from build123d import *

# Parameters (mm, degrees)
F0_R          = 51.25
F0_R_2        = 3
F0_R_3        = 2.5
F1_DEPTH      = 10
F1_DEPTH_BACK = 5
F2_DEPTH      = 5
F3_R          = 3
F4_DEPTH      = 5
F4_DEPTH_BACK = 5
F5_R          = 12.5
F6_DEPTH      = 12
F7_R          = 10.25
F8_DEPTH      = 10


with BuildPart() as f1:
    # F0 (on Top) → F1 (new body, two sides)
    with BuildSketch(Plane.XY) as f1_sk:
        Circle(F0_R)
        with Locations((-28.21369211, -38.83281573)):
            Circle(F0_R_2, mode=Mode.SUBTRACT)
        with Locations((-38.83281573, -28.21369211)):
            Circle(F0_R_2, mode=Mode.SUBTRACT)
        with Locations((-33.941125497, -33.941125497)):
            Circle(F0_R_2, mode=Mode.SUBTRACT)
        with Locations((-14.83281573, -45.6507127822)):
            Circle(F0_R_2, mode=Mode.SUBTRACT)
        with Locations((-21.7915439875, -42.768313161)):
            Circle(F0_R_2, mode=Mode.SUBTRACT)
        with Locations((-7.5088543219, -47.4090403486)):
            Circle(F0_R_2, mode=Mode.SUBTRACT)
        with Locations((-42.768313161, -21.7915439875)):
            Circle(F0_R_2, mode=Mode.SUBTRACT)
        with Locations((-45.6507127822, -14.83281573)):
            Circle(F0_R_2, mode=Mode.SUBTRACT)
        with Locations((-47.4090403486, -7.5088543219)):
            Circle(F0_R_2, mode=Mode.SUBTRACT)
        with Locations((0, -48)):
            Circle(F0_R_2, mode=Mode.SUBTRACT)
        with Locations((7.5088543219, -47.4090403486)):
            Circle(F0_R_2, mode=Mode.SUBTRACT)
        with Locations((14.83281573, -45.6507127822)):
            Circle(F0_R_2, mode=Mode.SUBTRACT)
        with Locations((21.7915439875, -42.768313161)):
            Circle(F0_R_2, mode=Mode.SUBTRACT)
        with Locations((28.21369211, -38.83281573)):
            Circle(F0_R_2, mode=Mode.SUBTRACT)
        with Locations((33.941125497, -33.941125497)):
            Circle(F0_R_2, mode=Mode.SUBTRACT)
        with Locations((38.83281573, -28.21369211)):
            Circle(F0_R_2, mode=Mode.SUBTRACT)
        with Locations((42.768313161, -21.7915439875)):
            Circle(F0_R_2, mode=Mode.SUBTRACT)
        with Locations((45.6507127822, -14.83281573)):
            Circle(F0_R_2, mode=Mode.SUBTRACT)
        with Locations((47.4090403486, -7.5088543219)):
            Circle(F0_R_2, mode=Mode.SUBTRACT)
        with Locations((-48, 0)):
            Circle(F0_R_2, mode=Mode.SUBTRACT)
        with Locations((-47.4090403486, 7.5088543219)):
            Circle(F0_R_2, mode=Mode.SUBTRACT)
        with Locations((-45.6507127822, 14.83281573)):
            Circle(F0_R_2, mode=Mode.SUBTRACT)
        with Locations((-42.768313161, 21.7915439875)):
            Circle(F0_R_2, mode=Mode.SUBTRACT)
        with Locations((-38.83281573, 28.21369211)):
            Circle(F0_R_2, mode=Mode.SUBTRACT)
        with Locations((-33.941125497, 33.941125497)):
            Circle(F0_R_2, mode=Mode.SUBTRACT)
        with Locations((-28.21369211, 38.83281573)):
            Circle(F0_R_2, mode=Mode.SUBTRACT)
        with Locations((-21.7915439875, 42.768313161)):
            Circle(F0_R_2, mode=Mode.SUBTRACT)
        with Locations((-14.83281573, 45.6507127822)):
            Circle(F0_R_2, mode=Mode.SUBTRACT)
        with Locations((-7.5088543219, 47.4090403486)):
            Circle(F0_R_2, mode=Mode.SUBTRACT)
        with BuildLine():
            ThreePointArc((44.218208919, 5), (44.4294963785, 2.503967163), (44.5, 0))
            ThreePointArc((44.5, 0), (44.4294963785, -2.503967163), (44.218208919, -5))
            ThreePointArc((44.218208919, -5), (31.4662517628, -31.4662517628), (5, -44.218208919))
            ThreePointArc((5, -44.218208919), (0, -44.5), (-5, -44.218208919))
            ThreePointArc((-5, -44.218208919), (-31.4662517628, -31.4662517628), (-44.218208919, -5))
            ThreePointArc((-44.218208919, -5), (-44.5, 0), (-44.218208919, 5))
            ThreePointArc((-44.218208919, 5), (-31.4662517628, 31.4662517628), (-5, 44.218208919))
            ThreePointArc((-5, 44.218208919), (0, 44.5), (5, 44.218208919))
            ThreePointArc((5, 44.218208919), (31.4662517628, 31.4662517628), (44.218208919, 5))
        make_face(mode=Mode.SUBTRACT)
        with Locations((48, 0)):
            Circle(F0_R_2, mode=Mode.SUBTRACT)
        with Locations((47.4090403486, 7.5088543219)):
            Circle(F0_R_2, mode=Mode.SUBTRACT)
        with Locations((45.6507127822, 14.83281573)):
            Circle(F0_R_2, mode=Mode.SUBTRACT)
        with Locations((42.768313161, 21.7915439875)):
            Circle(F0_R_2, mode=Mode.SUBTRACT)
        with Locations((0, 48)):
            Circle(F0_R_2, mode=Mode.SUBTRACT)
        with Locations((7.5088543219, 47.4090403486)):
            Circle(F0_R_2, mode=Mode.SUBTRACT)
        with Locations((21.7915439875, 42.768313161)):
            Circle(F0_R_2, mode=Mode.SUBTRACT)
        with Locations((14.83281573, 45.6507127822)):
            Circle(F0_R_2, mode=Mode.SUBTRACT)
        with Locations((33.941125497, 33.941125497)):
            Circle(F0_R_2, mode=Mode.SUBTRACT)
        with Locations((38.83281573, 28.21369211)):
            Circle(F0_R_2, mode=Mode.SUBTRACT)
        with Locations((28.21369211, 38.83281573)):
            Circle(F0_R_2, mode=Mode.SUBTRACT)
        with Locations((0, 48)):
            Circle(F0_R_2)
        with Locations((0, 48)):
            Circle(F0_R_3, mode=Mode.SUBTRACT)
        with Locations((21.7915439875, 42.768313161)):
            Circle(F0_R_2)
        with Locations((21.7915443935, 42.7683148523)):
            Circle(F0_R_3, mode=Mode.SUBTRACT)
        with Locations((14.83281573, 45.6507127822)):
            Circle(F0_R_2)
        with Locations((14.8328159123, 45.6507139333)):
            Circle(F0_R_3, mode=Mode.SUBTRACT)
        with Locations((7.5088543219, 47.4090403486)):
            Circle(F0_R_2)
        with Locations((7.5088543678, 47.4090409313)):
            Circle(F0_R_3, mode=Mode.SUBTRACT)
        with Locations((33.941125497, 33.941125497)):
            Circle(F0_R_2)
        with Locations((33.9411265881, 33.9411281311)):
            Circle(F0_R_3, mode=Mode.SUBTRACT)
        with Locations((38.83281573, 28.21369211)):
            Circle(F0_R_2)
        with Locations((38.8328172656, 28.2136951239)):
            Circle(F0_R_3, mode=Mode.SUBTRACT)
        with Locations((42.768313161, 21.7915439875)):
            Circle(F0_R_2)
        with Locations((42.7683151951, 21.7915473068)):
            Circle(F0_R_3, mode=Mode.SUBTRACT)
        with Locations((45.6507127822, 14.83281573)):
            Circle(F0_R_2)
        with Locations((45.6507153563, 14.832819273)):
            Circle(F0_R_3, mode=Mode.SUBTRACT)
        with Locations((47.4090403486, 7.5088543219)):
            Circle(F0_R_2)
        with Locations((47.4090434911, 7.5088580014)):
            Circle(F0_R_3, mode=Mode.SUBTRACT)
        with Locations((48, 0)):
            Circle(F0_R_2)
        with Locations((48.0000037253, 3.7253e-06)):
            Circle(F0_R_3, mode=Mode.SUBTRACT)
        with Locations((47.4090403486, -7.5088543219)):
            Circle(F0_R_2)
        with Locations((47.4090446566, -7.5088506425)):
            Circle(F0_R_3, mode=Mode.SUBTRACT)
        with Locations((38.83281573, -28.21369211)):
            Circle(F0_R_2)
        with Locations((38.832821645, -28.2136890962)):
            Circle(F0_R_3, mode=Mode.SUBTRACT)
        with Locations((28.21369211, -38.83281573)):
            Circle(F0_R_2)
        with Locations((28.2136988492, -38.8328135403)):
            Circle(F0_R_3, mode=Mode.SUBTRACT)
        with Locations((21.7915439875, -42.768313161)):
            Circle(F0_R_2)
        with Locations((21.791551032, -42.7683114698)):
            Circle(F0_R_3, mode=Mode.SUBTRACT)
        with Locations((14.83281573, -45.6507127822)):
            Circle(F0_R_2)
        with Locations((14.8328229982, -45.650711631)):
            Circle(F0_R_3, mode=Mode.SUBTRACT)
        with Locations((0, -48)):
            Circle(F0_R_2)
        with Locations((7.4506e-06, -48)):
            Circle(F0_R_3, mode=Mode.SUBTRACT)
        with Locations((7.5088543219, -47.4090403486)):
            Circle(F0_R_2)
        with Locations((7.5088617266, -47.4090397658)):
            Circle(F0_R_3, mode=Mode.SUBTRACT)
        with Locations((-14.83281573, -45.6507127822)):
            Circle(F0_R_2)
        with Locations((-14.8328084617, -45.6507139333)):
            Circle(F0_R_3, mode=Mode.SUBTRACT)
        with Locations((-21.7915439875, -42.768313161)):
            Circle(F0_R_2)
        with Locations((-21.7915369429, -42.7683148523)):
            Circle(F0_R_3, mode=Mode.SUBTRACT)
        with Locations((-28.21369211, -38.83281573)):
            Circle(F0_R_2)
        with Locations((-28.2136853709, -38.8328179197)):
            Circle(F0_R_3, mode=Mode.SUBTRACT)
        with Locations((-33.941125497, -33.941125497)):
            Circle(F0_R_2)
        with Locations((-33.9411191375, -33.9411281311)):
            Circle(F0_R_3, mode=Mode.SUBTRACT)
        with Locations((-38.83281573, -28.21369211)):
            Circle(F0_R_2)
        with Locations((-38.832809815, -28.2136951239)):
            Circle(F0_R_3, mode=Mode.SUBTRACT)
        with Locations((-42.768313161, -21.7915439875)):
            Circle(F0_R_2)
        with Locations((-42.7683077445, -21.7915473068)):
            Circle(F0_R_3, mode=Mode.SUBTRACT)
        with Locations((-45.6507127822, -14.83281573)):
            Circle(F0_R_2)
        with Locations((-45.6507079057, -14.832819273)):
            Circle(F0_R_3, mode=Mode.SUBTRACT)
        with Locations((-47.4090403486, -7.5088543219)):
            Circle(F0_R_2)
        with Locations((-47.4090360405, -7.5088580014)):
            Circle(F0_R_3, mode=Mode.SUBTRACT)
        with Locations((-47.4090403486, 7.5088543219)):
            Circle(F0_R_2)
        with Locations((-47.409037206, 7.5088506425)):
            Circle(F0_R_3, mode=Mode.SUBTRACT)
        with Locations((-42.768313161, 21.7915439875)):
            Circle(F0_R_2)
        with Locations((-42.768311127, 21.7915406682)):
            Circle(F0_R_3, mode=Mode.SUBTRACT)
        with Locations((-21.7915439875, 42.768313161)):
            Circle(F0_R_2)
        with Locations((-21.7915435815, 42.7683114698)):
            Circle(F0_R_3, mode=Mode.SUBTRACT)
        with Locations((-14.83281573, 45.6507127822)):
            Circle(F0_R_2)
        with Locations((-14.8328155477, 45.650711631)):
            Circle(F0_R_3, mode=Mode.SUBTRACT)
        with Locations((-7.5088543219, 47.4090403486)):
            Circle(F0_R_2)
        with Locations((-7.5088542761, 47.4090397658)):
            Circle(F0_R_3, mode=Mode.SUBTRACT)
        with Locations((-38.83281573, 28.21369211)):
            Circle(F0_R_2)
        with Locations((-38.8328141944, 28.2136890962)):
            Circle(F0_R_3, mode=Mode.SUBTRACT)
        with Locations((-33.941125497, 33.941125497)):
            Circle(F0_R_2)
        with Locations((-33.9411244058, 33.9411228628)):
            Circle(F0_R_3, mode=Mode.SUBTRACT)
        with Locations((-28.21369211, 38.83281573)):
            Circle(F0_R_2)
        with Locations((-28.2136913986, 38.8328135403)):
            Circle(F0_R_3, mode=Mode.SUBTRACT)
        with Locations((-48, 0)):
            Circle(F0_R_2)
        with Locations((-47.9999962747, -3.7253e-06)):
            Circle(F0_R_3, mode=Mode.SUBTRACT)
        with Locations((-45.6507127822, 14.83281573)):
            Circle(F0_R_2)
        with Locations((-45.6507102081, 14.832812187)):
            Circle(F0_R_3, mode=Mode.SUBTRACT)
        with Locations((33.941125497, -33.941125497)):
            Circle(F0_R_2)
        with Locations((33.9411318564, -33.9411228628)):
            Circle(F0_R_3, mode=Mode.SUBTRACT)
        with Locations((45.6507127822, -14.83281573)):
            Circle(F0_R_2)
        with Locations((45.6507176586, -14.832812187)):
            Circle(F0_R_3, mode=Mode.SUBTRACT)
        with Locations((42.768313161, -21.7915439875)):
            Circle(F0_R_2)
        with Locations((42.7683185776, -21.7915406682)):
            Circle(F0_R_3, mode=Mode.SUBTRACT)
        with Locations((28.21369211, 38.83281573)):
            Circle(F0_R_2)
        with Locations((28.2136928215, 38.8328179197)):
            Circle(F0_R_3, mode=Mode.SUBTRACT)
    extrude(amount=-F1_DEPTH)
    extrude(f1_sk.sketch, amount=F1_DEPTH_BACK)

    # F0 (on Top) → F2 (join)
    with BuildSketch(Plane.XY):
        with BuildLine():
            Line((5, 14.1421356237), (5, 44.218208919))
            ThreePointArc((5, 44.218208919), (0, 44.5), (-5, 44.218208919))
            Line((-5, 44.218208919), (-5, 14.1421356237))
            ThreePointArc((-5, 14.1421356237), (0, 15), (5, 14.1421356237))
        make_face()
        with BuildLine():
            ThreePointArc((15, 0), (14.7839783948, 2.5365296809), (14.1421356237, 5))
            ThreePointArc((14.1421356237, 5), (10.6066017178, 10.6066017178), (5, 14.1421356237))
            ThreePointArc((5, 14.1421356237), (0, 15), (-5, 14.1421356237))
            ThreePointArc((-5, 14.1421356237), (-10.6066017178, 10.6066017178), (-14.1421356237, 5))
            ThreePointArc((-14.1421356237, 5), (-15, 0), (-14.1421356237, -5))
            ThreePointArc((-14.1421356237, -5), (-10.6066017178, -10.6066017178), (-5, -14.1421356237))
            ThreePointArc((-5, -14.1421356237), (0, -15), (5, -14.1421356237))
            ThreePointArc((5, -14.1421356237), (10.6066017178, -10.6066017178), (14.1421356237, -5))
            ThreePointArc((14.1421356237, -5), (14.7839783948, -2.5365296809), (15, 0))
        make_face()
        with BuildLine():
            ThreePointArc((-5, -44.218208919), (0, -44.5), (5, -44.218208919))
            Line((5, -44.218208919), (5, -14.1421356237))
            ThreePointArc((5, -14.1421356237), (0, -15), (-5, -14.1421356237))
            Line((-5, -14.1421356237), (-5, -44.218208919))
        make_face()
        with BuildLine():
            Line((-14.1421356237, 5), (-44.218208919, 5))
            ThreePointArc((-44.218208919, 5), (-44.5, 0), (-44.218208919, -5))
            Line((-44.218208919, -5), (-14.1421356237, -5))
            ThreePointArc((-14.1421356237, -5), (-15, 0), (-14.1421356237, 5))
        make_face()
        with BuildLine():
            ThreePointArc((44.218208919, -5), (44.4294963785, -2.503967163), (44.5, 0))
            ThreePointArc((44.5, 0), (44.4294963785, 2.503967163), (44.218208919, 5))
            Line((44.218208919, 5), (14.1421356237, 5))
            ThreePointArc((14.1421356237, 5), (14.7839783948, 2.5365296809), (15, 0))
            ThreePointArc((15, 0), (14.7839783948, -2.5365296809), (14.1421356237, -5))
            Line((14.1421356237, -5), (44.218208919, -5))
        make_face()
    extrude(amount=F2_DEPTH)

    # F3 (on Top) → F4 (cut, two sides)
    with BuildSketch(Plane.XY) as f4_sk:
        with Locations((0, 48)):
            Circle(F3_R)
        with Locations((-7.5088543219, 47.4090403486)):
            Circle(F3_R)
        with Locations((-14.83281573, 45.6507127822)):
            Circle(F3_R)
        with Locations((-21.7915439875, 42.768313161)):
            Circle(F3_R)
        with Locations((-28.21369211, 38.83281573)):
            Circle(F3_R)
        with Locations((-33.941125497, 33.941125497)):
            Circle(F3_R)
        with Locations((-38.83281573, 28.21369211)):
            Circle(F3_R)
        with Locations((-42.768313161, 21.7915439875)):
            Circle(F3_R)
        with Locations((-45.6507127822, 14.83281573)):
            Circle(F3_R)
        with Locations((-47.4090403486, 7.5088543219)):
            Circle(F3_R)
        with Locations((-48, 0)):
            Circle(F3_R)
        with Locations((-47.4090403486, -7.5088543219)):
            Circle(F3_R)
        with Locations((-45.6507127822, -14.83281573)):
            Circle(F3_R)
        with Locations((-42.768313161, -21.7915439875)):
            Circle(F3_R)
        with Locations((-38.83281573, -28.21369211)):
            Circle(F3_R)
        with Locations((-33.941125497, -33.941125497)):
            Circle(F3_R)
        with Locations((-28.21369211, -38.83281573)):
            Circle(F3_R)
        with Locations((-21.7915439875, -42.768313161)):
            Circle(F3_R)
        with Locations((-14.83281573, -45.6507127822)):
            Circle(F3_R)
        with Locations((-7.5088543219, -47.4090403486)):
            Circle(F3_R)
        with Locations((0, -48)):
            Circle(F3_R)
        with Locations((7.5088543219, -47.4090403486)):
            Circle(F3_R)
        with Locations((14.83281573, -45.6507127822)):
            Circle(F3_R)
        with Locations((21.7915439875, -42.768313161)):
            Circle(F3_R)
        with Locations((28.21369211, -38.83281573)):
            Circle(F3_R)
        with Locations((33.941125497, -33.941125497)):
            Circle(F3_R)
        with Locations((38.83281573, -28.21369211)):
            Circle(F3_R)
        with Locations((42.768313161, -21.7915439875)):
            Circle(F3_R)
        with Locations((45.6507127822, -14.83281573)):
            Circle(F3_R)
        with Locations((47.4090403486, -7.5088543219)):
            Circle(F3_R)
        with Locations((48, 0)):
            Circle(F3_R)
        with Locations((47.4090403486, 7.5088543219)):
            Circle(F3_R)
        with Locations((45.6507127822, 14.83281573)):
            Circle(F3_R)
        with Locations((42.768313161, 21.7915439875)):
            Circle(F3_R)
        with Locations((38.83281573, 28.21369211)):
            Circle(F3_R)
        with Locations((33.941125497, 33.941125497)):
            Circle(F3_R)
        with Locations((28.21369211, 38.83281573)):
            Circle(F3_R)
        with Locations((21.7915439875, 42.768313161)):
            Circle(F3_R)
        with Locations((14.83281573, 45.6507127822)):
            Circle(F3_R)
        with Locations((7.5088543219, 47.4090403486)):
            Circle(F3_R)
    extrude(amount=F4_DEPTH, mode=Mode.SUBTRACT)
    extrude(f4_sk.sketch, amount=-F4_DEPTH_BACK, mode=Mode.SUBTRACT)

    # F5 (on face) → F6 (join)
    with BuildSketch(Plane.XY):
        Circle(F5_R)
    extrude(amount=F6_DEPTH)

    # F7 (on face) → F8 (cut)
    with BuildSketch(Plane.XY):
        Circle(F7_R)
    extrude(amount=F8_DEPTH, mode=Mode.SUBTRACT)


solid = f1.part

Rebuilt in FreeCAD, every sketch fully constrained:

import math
import FreeCAD as App
import Part
import Sketcher

V = App.Vector
Q = App.Units.Quantity

doc = App.newDocument("Part")
body = doc.addObject("PartDesign::Body", "Body")

sketch1 = body.newObject("Sketcher::SketchObject", "Sketch")
sketch1.AttachmentSupport = (doc.getObject("XY_Plane"), [""])
sketch1.MapMode = "FlatFace"
sketch1.addGeometry([
    Part.Circle(V(0, 0, 0), V(0, 0, 1), 51.2),
    Part.Circle(V(-28.2, -38.8, 0), V(0, 0, 1), 2.5),
    Part.Circle(V(-38.8, -28.2, 0), V(0, 0, 1), 2.5),
    Part.Circle(V(-33.9, -33.9, 0), V(0, 0, 1), 2.5),
    Part.Circle(V(-14.8, -45.7, 0), V(0, 0, 1), 2.5),
    Part.Circle(V(-21.8, -42.8, 0), V(0, 0, 1), 2.5),
    Part.Circle(V(-7.5, -47.4, 0), V(0, 0, 1), 3),
    Part.Circle(V(-42.8, -21.8, 0), V(0, 0, 1), 2.5),
    Part.Circle(V(-45.7, -14.8, 0), V(0, 0, 1), 2.5),
    Part.Circle(V(-47.4, -7.5, 0), V(0, 0, 1), 2.5),
    Part.Circle(V(-48, 0, 0), V(0, 0, 1), 2.5),
    Part.Circle(V(0, -48, 0), V(0, 0, 1), 2.5),
    Part.Circle(V(7.5, -47.4, 0), V(0, 0, 1), 2.5),
    Part.Circle(V(14.8, -45.7, 0), V(0, 0, 1), 2.5),
    Part.Circle(V(21.8, -42.8, 0), V(0, 0, 1), 2.5),
    Part.Circle(V(28.2, -38.8, 0), V(0, 0, 1), 2.5),
    Part.Circle(V(33.9, -33.9, 0), V(0, 0, 1), 2.5),
    Part.Circle(V(38.8, -28.2, 0), V(0, 0, 1), 2.5),
    Part.Circle(V(42.8, -21.8, 0), V(0, 0, 1), 2.5),
    Part.Circle(V(45.7, -14.8, 0), V(0, 0, 1), 2.5),
    Part.Circle(V(47.4, -7.5, 0), V(0, 0, 1), 2.5),
    Part.Circle(V(-47.4, 7.5, 0), V(0, 0, 1), 2.5),
    Part.Circle(V(-45.7, 14.8, 0), V(0, 0, 1), 2.5),
    Part.Circle(V(-42.8, 21.8, 0), V(0, 0, 1), 2.5),
    Part.ArcOfCircle(Part.Circle(V(0, 0, 0), V(0, 0, 1), 44.5), math.radians(6), math.radians(84)),
    Part.ArcOfCircle(Part.Circle(V(0, 0, 0), V(0, 0, 1), 44.5), math.radians(0), math.radians(6.45)),
    Part.ArcOfCircle(Part.Circle(V(0, 0, 0), V(0, 0, 1), 44.5), math.radians(-6.45), math.radians(0)),
    Part.ArcOfCircle(Part.Circle(V(0, 0, 0), V(0, 0, 1), 44.5), math.radians(-84), math.radians(-6)),
    Part.ArcOfCircle(Part.Circle(V(0, 0, 0), V(0, 0, 1), 44.5), math.radians(-96.45), math.radians(-83.55)),
    Part.ArcOfCircle(Part.Circle(V(0, 0, 0), V(0, 0, 1), 44.5), math.radians(-174), math.radians(-96)),
    Part.ArcOfCircle(Part.Circle(V(0, 0, 0), V(0, 0, 1), 44.5), math.radians(173.55), math.radians(186.45)),
    Part.ArcOfCircle(Part.Circle(V(0, 0, 0), V(0, 0, 1), 44.5), math.radians(96), math.radians(174)),
    Part.ArcOfCircle(Part.Circle(V(0, 0, 0), V(0, 0, 1), 44.5), math.radians(83.55), math.radians(96.45)),
    Part.Circle(V(-38.8, 28.2, 0), V(0, 0, 1), 2.5),
    Part.Circle(V(-33.9, 33.9, 0), V(0, 0, 1), 2.5),
    Part.Circle(V(-28.2, 38.8, 0), V(0, 0, 1), 2.5),
    Part.Circle(V(-21.8, 42.8, 0), V(0, 0, 1), 2.5),
    Part.Circle(V(-14.8, 45.7, 0), V(0, 0, 1), 2.5),
    Part.Circle(V(-7.5, 47.4, 0), V(0, 0, 1), 2.5),
    Part.Circle(V(0, 48, 0), V(0, 0, 1), 2.5),
    Part.Circle(V(48, 0, 0), V(0, 0, 1), 2.5),
    Part.Circle(V(47.4, 7.5, 0), V(0, 0, 1), 2.5),
    Part.Circle(V(45.7, 14.8, 0), V(0, 0, 1), 2.5),
    Part.Circle(V(42.8, 21.8, 0), V(0, 0, 1), 2.5),
    Part.Circle(V(7.5, 47.4, 0), V(0, 0, 1), 2.5),
    Part.Circle(V(21.8, 42.8, 0), V(0, 0, 1), 2.5),
    Part.Circle(V(14.8, 45.7, 0), V(0, 0, 1), 2.5),
    Part.Circle(V(33.9, 33.9, 0), V(0, 0, 1), 2.5),
    Part.Circle(V(38.8, 28.2, 0), V(0, 0, 1), 2.5),
    Part.Circle(V(28.2, 38.8, 0), V(0, 0, 1), 2.5),
], False)
sketch1.addConstraint([
    Sketcher.Constraint("Tangent", 24, 1, 25, 2),
    Sketcher.Constraint("Tangent", 25, 1, 26, 2),
    Sketcher.Constraint("Tangent", 26, 1, 27, 2),
    Sketcher.Constraint("Tangent", 27, 1, 28, 2),
    Sketcher.Constraint("Tangent", 28, 1, 29, 2),
    Sketcher.Constraint("Tangent", 29, 1, 30, 2),
    Sketcher.Constraint("Tangent", 30, 1, 31, 2),
    Sketcher.Constraint("Tangent", 31, 1, 32, 2),
    Sketcher.Constraint("Tangent", 32, 1, 24, 2),
    Sketcher.Constraint("Coincident", 0, 3, -1, 1),
    Sketcher.Constraint("Coincident", 24, 3, -1, 1),
    Sketcher.Constraint("Coincident", 26, 3, -1, 1),
    Sketcher.Constraint("Coincident", 28, 3, -1, 1),
    Sketcher.Constraint("Coincident", 30, 3, -1, 1),
    Sketcher.Constraint("Equal", 1, 2),
    Sketcher.Constraint("Equal", 2, 3),
    Sketcher.Constraint("Equal", 3, 4),
    Sketcher.Constraint("Equal", 4, 5),
    Sketcher.Constraint("Equal", 5, 7),
    Sketcher.Constraint("Equal", 7, 8),
    Sketcher.Constraint("Equal", 8, 9),
    Sketcher.Constraint("Equal", 9, 10),
    Sketcher.Constraint("Equal", 10, 11),
    Sketcher.Constraint("Equal", 11, 12),
    Sketcher.Constraint("Equal", 12, 13),
    Sketcher.Constraint("Equal", 13, 14),
    Sketcher.Constraint("Equal", 14, 15),
    Sketcher.Constraint("Equal", 15, 16),
    Sketcher.Constraint("Equal", 16, 17),
    Sketcher.Constraint("Equal", 17, 18),
    Sketcher.Constraint("Equal", 18, 19),
    Sketcher.Constraint("Equal", 19, 20),
    Sketcher.Constraint("Equal", 20, 21),
    Sketcher.Constraint("Equal", 21, 22),
    Sketcher.Constraint("Equal", 22, 23),
    Sketcher.Constraint("Equal", 23, 33),
    Sketcher.Constraint("Equal", 33, 34),
    Sketcher.Constraint("Equal", 34, 35),
    Sketcher.Constraint("Equal", 35, 36),
    Sketcher.Constraint("Equal", 36, 37),
    Sketcher.Constraint("Equal", 37, 38),
    Sketcher.Constraint("Equal", 38, 39),
    Sketcher.Constraint("Equal", 39, 40),
    Sketcher.Constraint("Equal", 40, 41),
    Sketcher.Constraint("Equal", 41, 42),
    Sketcher.Constraint("Equal", 42, 43),
    Sketcher.Constraint("Equal", 43, 44),
    Sketcher.Constraint("Equal", 44, 45),
    Sketcher.Constraint("Equal", 45, 46),
    Sketcher.Constraint("Equal", 46, 47),
    Sketcher.Constraint("Equal", 47, 48),
    Sketcher.Constraint("Equal", 48, 49),
    Sketcher.Constraint("Symmetric", 20, 3, 21, 3, -1, 1),
    Sketcher.Constraint("Symmetric", 19, 3, 22, 3, -1, 1),
    Sketcher.Constraint("Symmetric", 18, 3, 23, 3, -1, 1),
    Sketcher.Constraint("Symmetric", 17, 3, 33, 3, -1, 1),
    Sketcher.Constraint("Symmetric", 16, 3, 34, 3, -1, 1),
    Sketcher.Constraint("Symmetric", 15, 3, 35, 3, -1, 1),
    Sketcher.Constraint("Symmetric", 14, 3, 36, 3, -1, 1),
    Sketcher.Constraint("Symmetric", 13, 3, 37, 3, -1, 1),
    Sketcher.Constraint("Symmetric", 12, 3, 38, 3, -1, 1),
    Sketcher.Constraint("Symmetric", 11, 3, 39, 3, -1, 1),
    Sketcher.Constraint("Symmetric", 10, 3, 40, 3, -1, 1),
    Sketcher.Constraint("Symmetric", 9, 3, 41, 3, -1, 1),
    Sketcher.Constraint("Symmetric", 8, 3, 42, 3, -1, 1),
    Sketcher.Constraint("Symmetric", 7, 3, 43, 3, -1, 1),
    Sketcher.Constraint("Symmetric", 6, 3, 44, 3, -1, 1),
    Sketcher.Constraint("Symmetric", 5, 3, 45, 3, -1, 1),
    Sketcher.Constraint("Symmetric", 4, 3, 46, 3, -1, 1),
    Sketcher.Constraint("Symmetric", 3, 3, 47, 3, -1, 1),
    Sketcher.Constraint("Symmetric", 2, 3, 48, 3, -1, 1),
    Sketcher.Constraint("Symmetric", 1, 3, 49, 3, -1, 1),
    Sketcher.Constraint("Symmetric", 6, 3, 12, 3, -2),
    Sketcher.Constraint("Symmetric", 21, 3, 41, 3, -2),
    Sketcher.Constraint("Symmetric", 22, 3, 42, 3, -2),
    Sketcher.Constraint("Symmetric", 23, 3, 43, 3, -2),
    Sketcher.Constraint("Symmetric", 36, 3, 45, 3, -2),
    Sketcher.Constraint("Symmetric", 37, 3, 46, 3, -2),
    Sketcher.Constraint("Symmetric", 34, 3, 47, 3, -2),
    Sketcher.Constraint("Symmetric", 33, 3, 48, 3, -2),
    Sketcher.Constraint("Symmetric", 35, 3, 49, 3, -2),
    Sketcher.Constraint("PointOnObject", 39, 3, -2),
    Sketcher.Constraint("PointOnObject", 25, 1, -1),
    Sketcher.Constraint("Horizontal", 27, 1, 28, 1),
    Sketcher.Constraint("Horizontal", 26, 1, 29, 1),
    Sketcher.Constraint("Horizontal", 24, 1, 30, 1),
    Sketcher.Constraint("Horizontal", 31, 1, 32, 1),
    Sketcher.Constraint("Vertical", 24, 1, 26, 1),
    Sketcher.Constraint("Vertical", 28, 1, 31, 1),
    Sketcher.Constraint("Diameter", 1, Q("5 mm")),
    Sketcher.Constraint("Diameter", 6, Q("6 mm")),
    Sketcher.Constraint("Diameter", 0, Q("102.5 mm")),
    Sketcher.Constraint("Radius", 24, Q("44.5 mm")),
    Sketcher.Constraint("DistanceY", 11, 3, -1, 1, Q("48 mm")),
    Sketcher.Constraint("DistanceY", -1, 1, 24, 1, Q("5 mm")),
    Sketcher.Constraint("DistanceX", -1, 1, 27, 1, Q("5 mm")),
    Sketcher.Constraint("DistanceX", 2, 3, 4, 3, Q("24.000001 mm")),
    Sketcher.Constraint("DistanceY", 1, 3, 8, 3, Q("23.999999 mm")),
    Sketcher.Constraint("DistanceX", -1, 1, 15, 3, Q("28.213699 mm")),
    Sketcher.Constraint("DistanceY", 4, 3, 5, 3, Q("2.882399 mm")),
    Sketcher.Constraint("DistanceX", 7, 3, 4, 3, Q("27.935499 mm")),
    Sketcher.Constraint("DistanceX", 8, 3, 7, 3, Q("2.8824 mm")),
    Sketcher.Constraint("DistanceX", 5, 3, 12, 3, Q("29.300399 mm")),
    Sketcher.Constraint("DistanceY", 13, 3, 15, 3, Q("6.817898 mm")),
    Sketcher.Constraint("DistanceY", 9, 3, 23, 3, Q("29.300399 mm")),
    Sketcher.Constraint("DistanceX", 8, 3, 29, 1, Q("1.432499 mm")),
    Sketcher.Constraint("DistanceX", 3, 3, -1, 1, Q("33.941119 mm")),
    Sketcher.Constraint("DistanceY", 3, 3, -1, 1, Q("33.941128 mm")),
    Sketcher.Constraint("DistanceY", 6, 3, -1, 1, Q("47.40904 mm")),
    Sketcher.Constraint("DistanceY", 8, 3, -1, 1, Q("14.832819 mm")),
    Sketcher.Constraint("DistanceY", 9, 3, -1, 1, Q("7.508858 mm")),
    Sketcher.Constraint("DistanceX", -1, 1, 12, 3, Q("7.508862 mm")),
    Sketcher.Constraint("DistanceY", 17, 3, -1, 1, Q("28.213689 mm")),
    Sketcher.Constraint("DistanceX", 9, 3, 8, 3, Q("1.758328 mm")),
    Sketcher.Constraint("DistanceX", 10, 3, 9, 3, Q("0.59096 mm")),
    Sketcher.Constraint("DistanceY", 2, 3, 10, 3, Q("28.213691 mm")),
])
pad1 = body.newObject("PartDesign::Pad", "Pad")
pad1.Profile = sketch1
pad1.Type = "TwoLengths"
pad1.Length = 10
pad1.Length2 = 5
pad1.Reversed = True

sketch2 = body.newObject("Sketcher::SketchObject", "Sketch001")
sketch2.AttachmentSupport = (doc.getObject("XY_Plane"), [""])
sketch2.MapMode = "FlatFace"
sketch2.addGeometry([
    Part.LineSegment(V(5, 14, 0), V(5, 44, 0)),
    Part.ArcOfCircle(Part.Circle(V(0, 0, 0), V(0, 0, 1), 45), math.radians(83.55), math.radians(96.45)),
    Part.LineSegment(V(-5, 44, 0), V(-5, 14, 0)),
    Part.ArcOfCircle(Part.Circle(V(0, 0, 0), V(0, 0, 1), 15), math.radians(109), math.radians(161)),
    Part.LineSegment(V(-14, 5, 0), V(-44, 5, 0)),
    Part.ArcOfCircle(Part.Circle(V(0, 0, 0), V(0, 0, 1), 45), math.radians(173.55), math.radians(186.45)),
    Part.LineSegment(V(-44, -5, 0), V(-14, -5, 0)),
    Part.ArcOfCircle(Part.Circle(V(0, 0, 0), V(0, 0, 1), 15), math.radians(-161), math.radians(-109)),
    Part.LineSegment(V(-5, -14, 0), V(-5, -44, 0)),
    Part.ArcOfCircle(Part.Circle(V(0, 0, 0), V(0, 0, 1), 45), math.radians(-96.45), math.radians(-83.55)),
    Part.LineSegment(V(5, -44, 0), V(5, -14, 0)),
    Part.ArcOfCircle(Part.Circle(V(0, 0, 0), V(0, 0, 1), 15), math.radians(-71), math.radians(-19)),
    Part.LineSegment(V(14, -5, 0), V(44, -5, 0)),
    Part.ArcOfCircle(Part.Circle(V(0, 0, 0), V(0, 0, 1), 45), math.radians(-6.45), math.radians(0)),
    Part.ArcOfCircle(Part.Circle(V(0, 0, 0), V(0, 0, 1), 45), math.radians(0), math.radians(6.45)),
    Part.LineSegment(V(44, 5, 0), V(14, 5, 0)),
    Part.ArcOfCircle(Part.Circle(V(0, 0, 0), V(0, 0, 1), 15), math.radians(19), math.radians(71)),
], False)
sketch2.addConstraint([
    Sketcher.Constraint("Coincident", 0, 2, 1, 1),
    Sketcher.Constraint("Coincident", 1, 2, 2, 1),
    Sketcher.Constraint("Coincident", 2, 2, 3, 1),
    Sketcher.Constraint("Coincident", 3, 2, 4, 1),
    Sketcher.Constraint("Coincident", 4, 2, 5, 1),
    Sketcher.Constraint("Coincident", 5, 2, 6, 1),
    Sketcher.Constraint("Coincident", 6, 2, 7, 1),
    Sketcher.Constraint("Coincident", 7, 2, 8, 1),
    Sketcher.Constraint("Coincident", 8, 2, 9, 1),
    Sketcher.Constraint("Coincident", 9, 2, 10, 1),
    Sketcher.Constraint("Coincident", 10, 2, 11, 1),
    Sketcher.Constraint("Coincident", 11, 2, 12, 1),
    Sketcher.Constraint("Coincident", 12, 2, 13, 1),
    Sketcher.Constraint("Tangent", 13, 2, 14, 1),
    Sketcher.Constraint("Coincident", 14, 2, 15, 1),
    Sketcher.Constraint("Coincident", 15, 2, 16, 1),
    Sketcher.Constraint("Coincident", 16, 2, 0, 1),
    Sketcher.Constraint("Vertical", 0),
    Sketcher.Constraint("Vertical", 2),
    Sketcher.Constraint("Horizontal", 4),
    Sketcher.Constraint("Horizontal", 6),
    Sketcher.Constraint("Vertical", 8),
    Sketcher.Constraint("Vertical", 10),
    Sketcher.Constraint("Horizontal", 12),
    Sketcher.Constraint("Horizontal", 15),
    Sketcher.Constraint("Coincident", 1, 3, -1, 1),
    Sketcher.Constraint("Coincident", 3, 3, -1, 1),
    Sketcher.Constraint("Coincident", 5, 3, -1, 1),
    Sketcher.Constraint("Coincident", 7, 3, -1, 1),
    Sketcher.Constraint("Coincident", 9, 3, -1, 1),
    Sketcher.Constraint("Coincident", 11, 3, -1, 1),
    Sketcher.Constraint("Coincident", 13, 3, -1, 1),
    Sketcher.Constraint("Coincident", 16, 3, -1, 1),
    Sketcher.Constraint("Equal", 1, 5),
    Sketcher.Constraint("Equal", 3, 7),
    Sketcher.Constraint("Equal", 5, 9),
    Sketcher.Constraint("Equal", 7, 11),
    Sketcher.Constraint("Equal", 9, 13),
    Sketcher.Constraint("Equal", 13, 14),
    Sketcher.Constraint("Equal", 11, 16),
    Sketcher.Constraint("PointOnObject", 13, 2, -1),
    Sketcher.Constraint("Horizontal", 0, 2, 1, 2),
    Sketcher.Constraint("Horizontal", 8, 2, 9, 2),
    Sketcher.Constraint("Horizontal", 6, 2, 11, 2),
    Sketcher.Constraint("Horizontal", 4, 2, 14, 2),
    Sketcher.Constraint("Vertical", 4, 2, 5, 2),
    Sketcher.Constraint("Vertical", 2, 2, 7, 2),
    Sketcher.Constraint("Equal", 15, 0),
    Sketcher.Constraint("Radius", 3, Q("15 mm")),
    Sketcher.Constraint("Radius", 1, Q("44.5 mm")),
    Sketcher.Constraint("DistanceX", -1, 1, 0, 2, Q("5 mm")),
])
pad2 = body.newObject("PartDesign::Pad", "Pad001")
pad2.Profile = sketch2
pad2.Length = 5

sketch3 = body.newObject("Sketcher::SketchObject", "Sketch002")
sketch3.AttachmentSupport = (doc.getObject("XY_Plane"), [""])
sketch3.MapMode = "FlatFace"
sketch3.addGeometry([
    Part.Circle(V(0, 48, 0), V(0, 0, 1), 3),
    Part.Circle(V(-7.5, 47.4, 0), V(0, 0, 1), 3),
    Part.Circle(V(-14.8, 45.7, 0), V(0, 0, 1), 3),
    Part.Circle(V(-21.8, 42.8, 0), V(0, 0, 1), 3),
    Part.Circle(V(-28.2, 38.8, 0), V(0, 0, 1), 3),
    Part.Circle(V(-33.9, 33.9, 0), V(0, 0, 1), 3),
    Part.Circle(V(-38.8, 28.2, 0), V(0, 0, 1), 3),
    Part.Circle(V(-42.8, 21.8, 0), V(0, 0, 1), 3),
    Part.Circle(V(-45.7, 14.8, 0), V(0, 0, 1), 3),
    Part.Circle(V(-47.4, 7.5, 0), V(0, 0, 1), 3),
    Part.Circle(V(-48, 0, 0), V(0, 0, 1), 3),
    Part.Circle(V(-47.4, -7.5, 0), V(0, 0, 1), 3),
    Part.Circle(V(-45.7, -14.8, 0), V(0, 0, 1), 3),
    Part.Circle(V(-42.8, -21.8, 0), V(0, 0, 1), 3),
    Part.Circle(V(-38.8, -28.2, 0), V(0, 0, 1), 3),
    Part.Circle(V(-33.9, -33.9, 0), V(0, 0, 1), 3),
    Part.Circle(V(-28.2, -38.8, 0), V(0, 0, 1), 3),
    Part.Circle(V(-21.8, -42.8, 0), V(0, 0, 1), 3),
    Part.Circle(V(-14.8, -45.7, 0), V(0, 0, 1), 3),
    Part.Circle(V(-7.5, -47.4, 0), V(0, 0, 1), 3),
    Part.Circle(V(0, -48, 0), V(0, 0, 1), 3),
    Part.Circle(V(7.5, -47.4, 0), V(0, 0, 1), 3),
    Part.Circle(V(14.8, -45.7, 0), V(0, 0, 1), 3),
    Part.Circle(V(21.8, -42.8, 0), V(0, 0, 1), 3),
    Part.Circle(V(28.2, -38.8, 0), V(0, 0, 1), 3),
    Part.Circle(V(33.9, -33.9, 0), V(0, 0, 1), 3),
    Part.Circle(V(38.8, -28.2, 0), V(0, 0, 1), 3),
    Part.Circle(V(42.8, -21.8, 0), V(0, 0, 1), 3),
    Part.Circle(V(45.7, -14.8, 0), V(0, 0, 1), 3),
    Part.Circle(V(47.4, -7.5, 0), V(0, 0, 1), 3),
    Part.Circle(V(48, 0, 0), V(0, 0, 1), 3),
    Part.Circle(V(47.4, 7.5, 0), V(0, 0, 1), 3),
    Part.Circle(V(45.7, 14.8, 0), V(0, 0, 1), 3),
    Part.Circle(V(42.8, 21.8, 0), V(0, 0, 1), 3),
    Part.Circle(V(38.8, 28.2, 0), V(0, 0, 1), 3),
    Part.Circle(V(33.9, 33.9, 0), V(0, 0, 1), 3),
    Part.Circle(V(28.2, 38.8, 0), V(0, 0, 1), 3),
    Part.Circle(V(21.8, 42.8, 0), V(0, 0, 1), 3),
    Part.Circle(V(14.8, 45.7, 0), V(0, 0, 1), 3),
    Part.Circle(V(7.5, 47.4, 0), V(0, 0, 1), 3),
], False)
sketch3.addConstraint([
    Sketcher.Constraint("Equal", 0, 1),
    Sketcher.Constraint("Equal", 1, 2),
    Sketcher.Constraint("Equal", 2, 3),
    Sketcher.Constraint("Equal", 3, 4),
    Sketcher.Constraint("Equal", 4, 5),
    Sketcher.Constraint("Equal", 5, 6),
    Sketcher.Constraint("Equal", 6, 7),
    Sketcher.Constraint("Equal", 7, 8),
    Sketcher.Constraint("Equal", 8, 9),
    Sketcher.Constraint("Equal", 9, 10),
    Sketcher.Constraint("Equal", 10, 11),
    Sketcher.Constraint("Equal", 11, 12),
    Sketcher.Constraint("Equal", 12, 13),
    Sketcher.Constraint("Equal", 13, 14),
    Sketcher.Constraint("Equal", 14, 15),
    Sketcher.Constraint("Equal", 15, 16),
    Sketcher.Constraint("Equal", 16, 17),
    Sketcher.Constraint("Equal", 17, 18),
    Sketcher.Constraint("Equal", 18, 19),
    Sketcher.Constraint("Equal", 19, 20),
    Sketcher.Constraint("Equal", 20, 21),
    Sketcher.Constraint("Equal", 21, 22),
    Sketcher.Constraint("Equal", 22, 23),
    Sketcher.Constraint("Equal", 23, 24),
    Sketcher.Constraint("Equal", 24, 25),
    Sketcher.Constraint("Equal", 25, 26),
    Sketcher.Constraint("Equal", 26, 27),
    Sketcher.Constraint("Equal", 27, 28),
    Sketcher.Constraint("Equal", 28, 29),
    Sketcher.Constraint("Equal", 29, 30),
    Sketcher.Constraint("Equal", 30, 31),
    Sketcher.Constraint("Equal", 31, 32),
    Sketcher.Constraint("Equal", 32, 33),
    Sketcher.Constraint("Equal", 33, 34),
    Sketcher.Constraint("Equal", 34, 35),
    Sketcher.Constraint("Equal", 35, 36),
    Sketcher.Constraint("Equal", 36, 37),
    Sketcher.Constraint("Equal", 37, 38),
    Sketcher.Constraint("Equal", 38, 39),
    Sketcher.Constraint("Symmetric", 0, 3, 20, 3, -1, 1),
    Sketcher.Constraint("Symmetric", 1, 3, 21, 3, -1, 1),
    Sketcher.Constraint("Symmetric", 2, 3, 22, 3, -1, 1),
    Sketcher.Constraint("Symmetric", 3, 3, 23, 3, -1, 1),
    Sketcher.Constraint("Symmetric", 4, 3, 24, 3, -1, 1),
    Sketcher.Constraint("Symmetric", 5, 3, 25, 3, -1, 1),
    Sketcher.Constraint("Symmetric", 6, 3, 26, 3, -1, 1),
    Sketcher.Constraint("Symmetric", 7, 3, 27, 3, -1, 1),
    Sketcher.Constraint("Symmetric", 8, 3, 28, 3, -1, 1),
    Sketcher.Constraint("Symmetric", 9, 3, 29, 3, -1, 1),
    Sketcher.Constraint("Symmetric", 10, 3, 30, 3, -1, 1),
    Sketcher.Constraint("Symmetric", 11, 3, 31, 3, -1, 1),
    Sketcher.Constraint("Symmetric", 12, 3, 32, 3, -1, 1),
    Sketcher.Constraint("Symmetric", 13, 3, 33, 3, -1, 1),
    Sketcher.Constraint("Symmetric", 14, 3, 34, 3, -1, 1),
    Sketcher.Constraint("Symmetric", 15, 3, 35, 3, -1, 1),
    Sketcher.Constraint("Symmetric", 16, 3, 36, 3, -1, 1),
    Sketcher.Constraint("Symmetric", 17, 3, 37, 3, -1, 1),
    Sketcher.Constraint("Symmetric", 18, 3, 38, 3, -1, 1),
    Sketcher.Constraint("Symmetric", 19, 3, 39, 3, -1, 1),
    Sketcher.Constraint("Symmetric", 19, 3, 21, 3, -2),
    Sketcher.Constraint("Symmetric", 18, 3, 22, 3, -2),
    Sketcher.Constraint("Symmetric", 17, 3, 23, 3, -2),
    Sketcher.Constraint("Symmetric", 16, 3, 24, 3, -2),
    Sketcher.Constraint("Symmetric", 15, 3, 25, 3, -2),
    Sketcher.Constraint("Symmetric", 14, 3, 26, 3, -2),
    Sketcher.Constraint("Symmetric", 13, 3, 27, 3, -2),
    Sketcher.Constraint("Symmetric", 12, 3, 28, 3, -2),
    Sketcher.Constraint("Symmetric", 11, 3, 29, 3, -2),
    Sketcher.Constraint("PointOnObject", 0, 3, -2),
    Sketcher.Constraint("PointOnObject", 10, 3, -1),
    Sketcher.Constraint("Diameter", 0, Q("6 mm")),
    Sketcher.Constraint("DistanceY", -1, 1, 0, 3, Q("48 mm")),
    Sketcher.Constraint("DistanceX", 10, 3, -1, 1, Q("48 mm")),
    Sketcher.Constraint("DistanceX", 6, 3, 2, 3, Q("24 mm")),
    Sketcher.Constraint("DistanceY", 8, 3, 4, 3, Q("24 mm")),
    Sketcher.Constraint("DistanceY", 3, 3, 2, 3, Q("2.8824 mm")),
    Sketcher.Constraint("DistanceX", 8, 3, 7, 3, Q("2.8824 mm")),
    Sketcher.Constraint("DistanceY", 11, 3, 7, 3, Q("29.300398 mm")),
    Sketcher.Constraint("DistanceX", 17, 3, 21, 3, Q("29.300398 mm")),
    Sketcher.Constraint("DistanceY", -1, 1, 1, 3, Q("47.40904 mm")),
    Sketcher.Constraint("DistanceX", 9, 3, -1, 1, Q("47.40904 mm")),
    Sketcher.Constraint("DistanceX", 2, 3, 1, 3, Q("7.323961 mm")),
    Sketcher.Constraint("DistanceX", 3, 3, 2, 3, Q("6.958728 mm")),
    Sketcher.Constraint("DistanceX", 4, 3, 3, 3, Q("6.422148 mm")),
    Sketcher.Constraint("DistanceY", 5, 3, 4, 3, Q("4.89169 mm")),
    Sketcher.Constraint("DistanceX", 5, 3, 3, 3, Q("12.149582 mm")),
    Sketcher.Constraint("DistanceY", 6, 3, 3, 3, Q("14.554621 mm")),
    Sketcher.Constraint("DistanceY", 6, 3, 1, 3, Q("19.195348 mm")),
    Sketcher.Constraint("DistanceY", 7, 3, 6, 3, Q("6.422148 mm")),
    Sketcher.Constraint("DistanceY", 7, 3, 5, 3, Q("12.149582 mm")),
    Sketcher.Constraint("DistanceX", 7, 3, 4, 3, Q("14.554621 mm")),
])
pocket1 = body.newObject("PartDesign::Pocket", "Pocket")
pocket1.Profile = sketch3
pocket1.Type = "TwoLengths"
pocket1.Length = 5
pocket1.Length2 = 5
pocket1.Reversed = True

sketch4 = body.newObject("Sketcher::SketchObject", "Sketch003")
sketch4.AttachmentSupport = (doc.getObject("XY_Plane"), [""])
sketch4.MapMode = "FlatFace"
sketch4.addGeometry(Part.Circle(V(0, 0, 0), V(0, 0, 1), 12), False)
sketch4.addConstraint([
    Sketcher.Constraint("Coincident", 0, 3, -1, 1),
    Sketcher.Constraint("Diameter", 0, Q("25 mm")),
])
pad3 = body.newObject("PartDesign::Pad", "Pad002")
pad3.Profile = sketch4
pad3.Length = 12

sketch5 = body.newObject("Sketcher::SketchObject", "Sketch004")
sketch5.AttachmentSupport = (doc.getObject("XY_Plane"), [""])
sketch5.MapMode = "FlatFace"
sketch5.addGeometry(Part.Circle(V(0, 0, 0), V(0, 0, 1), 10), False)
sketch5.addConstraint([
    Sketcher.Constraint("Coincident", 0, 3, -1, 1),
    Sketcher.Constraint("Diameter", 0, Q("20.5 mm")),
])
pocket2 = body.newObject("PartDesign::Pocket", "Pocket001")
pocket2.Profile = sketch5
pocket2.Length = 10
pocket2.Reversed = True

doc.recompute()
